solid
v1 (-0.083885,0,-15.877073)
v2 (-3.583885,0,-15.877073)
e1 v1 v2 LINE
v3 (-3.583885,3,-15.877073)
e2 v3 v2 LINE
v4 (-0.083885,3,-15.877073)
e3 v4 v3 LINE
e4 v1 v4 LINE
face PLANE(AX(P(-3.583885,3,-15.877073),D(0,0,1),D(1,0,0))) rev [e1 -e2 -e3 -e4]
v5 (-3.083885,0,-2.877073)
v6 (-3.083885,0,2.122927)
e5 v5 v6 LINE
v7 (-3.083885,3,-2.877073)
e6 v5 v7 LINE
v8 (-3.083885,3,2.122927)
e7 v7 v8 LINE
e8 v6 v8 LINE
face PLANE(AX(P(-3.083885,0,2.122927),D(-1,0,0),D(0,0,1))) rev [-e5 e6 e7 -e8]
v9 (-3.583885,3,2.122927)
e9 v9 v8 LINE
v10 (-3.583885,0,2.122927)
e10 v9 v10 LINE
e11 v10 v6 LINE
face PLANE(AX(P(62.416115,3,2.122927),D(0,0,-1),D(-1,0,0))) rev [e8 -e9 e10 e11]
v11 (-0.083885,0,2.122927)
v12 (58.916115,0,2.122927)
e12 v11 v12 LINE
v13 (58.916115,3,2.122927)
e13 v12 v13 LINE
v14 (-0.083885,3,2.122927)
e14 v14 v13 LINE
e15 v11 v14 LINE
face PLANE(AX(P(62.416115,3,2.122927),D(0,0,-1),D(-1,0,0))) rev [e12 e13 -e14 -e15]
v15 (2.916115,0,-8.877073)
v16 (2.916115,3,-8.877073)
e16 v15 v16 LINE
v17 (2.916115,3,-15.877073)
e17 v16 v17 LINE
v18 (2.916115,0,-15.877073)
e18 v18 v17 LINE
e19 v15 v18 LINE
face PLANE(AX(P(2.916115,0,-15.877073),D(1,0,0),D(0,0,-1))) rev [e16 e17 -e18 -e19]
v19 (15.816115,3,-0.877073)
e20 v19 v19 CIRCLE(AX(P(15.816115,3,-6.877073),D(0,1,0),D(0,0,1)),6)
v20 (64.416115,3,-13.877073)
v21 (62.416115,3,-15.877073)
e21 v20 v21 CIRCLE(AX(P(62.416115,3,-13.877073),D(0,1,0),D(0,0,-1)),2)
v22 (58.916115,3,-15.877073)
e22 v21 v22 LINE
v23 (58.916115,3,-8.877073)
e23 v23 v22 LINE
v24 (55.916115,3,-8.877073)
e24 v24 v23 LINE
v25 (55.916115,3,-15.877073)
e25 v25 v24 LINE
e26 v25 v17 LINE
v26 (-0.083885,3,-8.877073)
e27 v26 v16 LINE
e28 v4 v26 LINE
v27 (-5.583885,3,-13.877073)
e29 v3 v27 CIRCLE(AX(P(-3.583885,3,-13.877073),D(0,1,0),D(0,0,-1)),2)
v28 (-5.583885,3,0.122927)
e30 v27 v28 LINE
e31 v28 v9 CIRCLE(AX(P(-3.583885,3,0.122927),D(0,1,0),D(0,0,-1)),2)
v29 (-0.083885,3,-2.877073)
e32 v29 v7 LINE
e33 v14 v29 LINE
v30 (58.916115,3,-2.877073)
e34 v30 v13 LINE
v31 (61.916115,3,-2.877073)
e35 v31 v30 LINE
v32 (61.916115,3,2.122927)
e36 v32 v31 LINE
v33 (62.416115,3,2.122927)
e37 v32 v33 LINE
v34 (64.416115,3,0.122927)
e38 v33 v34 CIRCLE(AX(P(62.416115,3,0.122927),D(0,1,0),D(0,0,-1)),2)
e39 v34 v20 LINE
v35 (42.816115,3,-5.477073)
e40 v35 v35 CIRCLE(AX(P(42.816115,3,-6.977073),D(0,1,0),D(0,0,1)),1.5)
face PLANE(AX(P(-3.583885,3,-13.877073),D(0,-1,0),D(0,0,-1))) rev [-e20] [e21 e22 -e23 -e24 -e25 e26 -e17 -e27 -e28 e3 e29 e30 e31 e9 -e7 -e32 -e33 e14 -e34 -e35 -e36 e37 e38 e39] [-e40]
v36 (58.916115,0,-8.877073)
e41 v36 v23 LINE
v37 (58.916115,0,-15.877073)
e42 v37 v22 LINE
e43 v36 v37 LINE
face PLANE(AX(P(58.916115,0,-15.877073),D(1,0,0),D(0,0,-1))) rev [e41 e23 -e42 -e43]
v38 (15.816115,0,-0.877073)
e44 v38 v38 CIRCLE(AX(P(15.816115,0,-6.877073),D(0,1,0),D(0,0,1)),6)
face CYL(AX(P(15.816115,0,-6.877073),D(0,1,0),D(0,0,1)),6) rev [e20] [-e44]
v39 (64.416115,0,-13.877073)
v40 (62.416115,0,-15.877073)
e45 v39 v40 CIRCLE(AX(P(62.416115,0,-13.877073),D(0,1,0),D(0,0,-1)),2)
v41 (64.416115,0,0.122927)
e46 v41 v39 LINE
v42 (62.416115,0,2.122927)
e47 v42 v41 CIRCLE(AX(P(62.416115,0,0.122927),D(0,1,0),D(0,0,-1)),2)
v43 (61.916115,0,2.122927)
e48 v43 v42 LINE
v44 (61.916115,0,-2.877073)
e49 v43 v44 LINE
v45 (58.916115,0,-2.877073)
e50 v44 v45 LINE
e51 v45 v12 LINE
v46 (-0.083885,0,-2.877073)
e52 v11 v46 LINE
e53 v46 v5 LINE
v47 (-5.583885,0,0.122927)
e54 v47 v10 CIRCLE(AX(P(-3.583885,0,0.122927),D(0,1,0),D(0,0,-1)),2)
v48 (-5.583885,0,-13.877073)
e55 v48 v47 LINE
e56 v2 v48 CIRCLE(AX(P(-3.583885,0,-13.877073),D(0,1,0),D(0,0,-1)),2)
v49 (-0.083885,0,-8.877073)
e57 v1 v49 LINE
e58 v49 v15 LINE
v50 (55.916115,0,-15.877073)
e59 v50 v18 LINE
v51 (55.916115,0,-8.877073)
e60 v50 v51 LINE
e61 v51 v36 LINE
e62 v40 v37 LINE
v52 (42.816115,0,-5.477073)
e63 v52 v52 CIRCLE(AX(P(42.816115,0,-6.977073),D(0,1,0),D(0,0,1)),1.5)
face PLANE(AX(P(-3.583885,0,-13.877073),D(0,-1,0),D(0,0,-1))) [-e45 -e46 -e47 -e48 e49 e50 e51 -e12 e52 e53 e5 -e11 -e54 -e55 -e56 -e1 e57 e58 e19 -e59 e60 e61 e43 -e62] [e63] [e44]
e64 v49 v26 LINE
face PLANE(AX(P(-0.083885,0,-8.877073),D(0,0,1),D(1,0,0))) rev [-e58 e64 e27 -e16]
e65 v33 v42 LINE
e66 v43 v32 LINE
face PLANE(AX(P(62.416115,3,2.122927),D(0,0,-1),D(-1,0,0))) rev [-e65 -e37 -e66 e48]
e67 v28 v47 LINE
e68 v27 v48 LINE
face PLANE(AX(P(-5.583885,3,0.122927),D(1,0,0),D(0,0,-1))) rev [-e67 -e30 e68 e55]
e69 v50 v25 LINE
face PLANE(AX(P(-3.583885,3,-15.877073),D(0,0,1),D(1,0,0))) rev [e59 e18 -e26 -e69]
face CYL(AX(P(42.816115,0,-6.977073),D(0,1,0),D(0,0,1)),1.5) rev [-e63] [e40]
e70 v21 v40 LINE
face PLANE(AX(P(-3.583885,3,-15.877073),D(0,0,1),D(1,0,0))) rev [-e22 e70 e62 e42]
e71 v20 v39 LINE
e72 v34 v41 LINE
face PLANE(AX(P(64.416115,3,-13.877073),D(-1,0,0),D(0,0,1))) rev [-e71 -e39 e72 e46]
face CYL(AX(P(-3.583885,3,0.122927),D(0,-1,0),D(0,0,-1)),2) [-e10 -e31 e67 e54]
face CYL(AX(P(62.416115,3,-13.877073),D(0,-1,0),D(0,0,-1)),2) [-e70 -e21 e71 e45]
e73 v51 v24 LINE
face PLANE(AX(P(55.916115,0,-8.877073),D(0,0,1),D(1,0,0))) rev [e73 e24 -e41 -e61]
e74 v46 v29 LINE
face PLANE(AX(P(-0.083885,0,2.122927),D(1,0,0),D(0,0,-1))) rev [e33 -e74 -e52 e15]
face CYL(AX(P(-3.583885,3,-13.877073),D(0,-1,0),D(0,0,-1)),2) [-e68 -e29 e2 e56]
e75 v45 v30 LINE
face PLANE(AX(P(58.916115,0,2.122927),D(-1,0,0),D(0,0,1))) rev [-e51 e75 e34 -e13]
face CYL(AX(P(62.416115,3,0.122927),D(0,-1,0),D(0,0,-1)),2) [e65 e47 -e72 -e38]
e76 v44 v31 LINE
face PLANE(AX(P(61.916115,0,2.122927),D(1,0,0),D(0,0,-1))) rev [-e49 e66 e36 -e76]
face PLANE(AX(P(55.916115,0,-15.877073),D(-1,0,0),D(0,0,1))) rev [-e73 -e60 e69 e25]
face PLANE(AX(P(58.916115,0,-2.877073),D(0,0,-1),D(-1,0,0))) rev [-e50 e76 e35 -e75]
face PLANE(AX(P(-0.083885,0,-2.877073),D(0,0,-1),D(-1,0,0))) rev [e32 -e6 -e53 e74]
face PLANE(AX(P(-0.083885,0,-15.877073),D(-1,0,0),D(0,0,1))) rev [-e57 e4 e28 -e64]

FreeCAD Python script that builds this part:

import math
import FreeCAD as App
import Part
import Sketcher
from FreeCAD import Vector
Q = App.Units.Quantity


def add_polygon(sketch, points):
    """Adds a closed chain of lines whose ends are joined by coincident constraints."""
    first, n = sketch.GeometryCount, len(points)
    for a, b in zip(points, points[1:] + points[:1]):
        sketch.addGeometry(Part.LineSegment(App.Vector(*a, 0), App.Vector(*b, 0)), False)
    for i in range(n):
        sketch.addConstraint(Sketcher.Constraint("Coincident", first + i, 2, first + (i + 1) % n, 1))

doc = App.newDocument("Part")
body = doc.addObject("PartDesign::Body", "Body")

# Sketch on XZ plane
sketch1 = body.newObject("Sketcher::SketchObject", "Sketch")
sketch1.AttachmentSupport = (doc.getObject("XZ_Plane"), [""])
sketch1.MapMode = "FlatFace"
sketch1.addGeometry([
    Part.LineSegment(Vector(62.4, -15.9, 0), Vector(-3.6, -15.9, 0)),  # 0
    Part.ArcOfCircle(Part.Circle(Vector(-3.6, -13.9, 0), Vector(0, 0, 1), 2), math.radians(180), math.radians(270)),  # 1
    Part.LineSegment(Vector(-5.6, -13.9, 0), Vector(-5.6, 0.1, 0)),  # 2
    Part.ArcOfCircle(Part.Circle(Vector(-3.6, 0.1, 0), Vector(0, 0, 1), 2), math.radians(90), math.radians(180)),  # 3
    Part.LineSegment(Vector(-3.6, 2.1, 0), Vector(62.4, 2.1, 0)),  # 4
    Part.ArcOfCircle(Part.Circle(Vector(62.4, 0.1, 0), Vector(0, 0, 1), 2), math.radians(0), math.radians(90)),  # 5
    Part.LineSegment(Vector(64.4, 0.1, 0), Vector(64.4, -13.9, 0)),  # 6
    Part.ArcOfCircle(Part.Circle(Vector(62.4, -13.9, 0), Vector(0, 0, 1), 2), math.radians(-90), math.radians(0)),  # 7
], False)
sketch1.addConstraint([
    Sketcher.Constraint("Tangent", 0, 2, 1, 2),
    Sketcher.Constraint("Tangent", 1, 1, 2, 1),
    Sketcher.Constraint("Tangent", 2, 2, 3, 2),
    Sketcher.Constraint("Tangent", 3, 1, 4, 1),
    Sketcher.Constraint("Tangent", 4, 2, 5, 2),
    Sketcher.Constraint("Tangent", 5, 1, 6, 1),
    Sketcher.Constraint("Tangent", 6, 2, 7, 2),
    Sketcher.Constraint("Tangent", 7, 1, 0, 1),
    Sketcher.Constraint("Horizontal", 0),
    Sketcher.Constraint("Vertical", 2),
    Sketcher.Constraint("Horizontal", 4),
    Sketcher.Constraint("Vertical", 6),
    Sketcher.Constraint("Equal", 1, 3),
    Sketcher.Constraint("Equal", 3, 5),
    Sketcher.Constraint("Equal", 5, 7),
    Sketcher.Constraint("Radius", 1, Q("2 mm")),
    Sketcher.Constraint("DistanceX", 0, 2, 0, 1, Q("66 mm")),
    Sketcher.Constraint("DistanceY", 2, 1, 2, 2, Q("14 mm")),
    Sketcher.Constraint("DistanceX", 1, 3, -1, 1, Q("3.583885 mm")),
    Sketcher.Constraint("DistanceY", 1, 3, -1, 1, Q("13.877073 mm")),
])
pad1 = body.newObject("PartDesign::Pad", "Pad")
pad1.Profile = sketch1
pad1.Length = 3
pad1.Reversed = True

# Sketch on XZ plane
sketch2 = body.newObject("Sketcher::SketchObject", "Sketch001")
sketch2.AttachmentSupport = (doc.getObject("XZ_Plane"), [""])
sketch2.MapMode = "FlatFace"
sketch2.AttachmentOffset = App.Placement(Vector(0, 0, -3), App.Rotation())
add_polygon(sketch2, [(-0.1, -15.9), (-0.1, -8.9), (2.9, -8.9), (2.9, -15.9)])  # lines 0-3
add_polygon(sketch2, [(55.9, -15.9), (55.9, -8.9), (58.9, -8.9), (58.9, -15.9)])  # lines 4-7
sketch2.addConstraint([
    Sketcher.Constraint("Vertical", 0),
    Sketcher.Constraint("Horizontal", 1),
    Sketcher.Constraint("Vertical", 2),
    Sketcher.Constraint("Horizontal", 3),
    Sketcher.Constraint("Vertical", 4),
    Sketcher.Constraint("Horizontal", 5),
    Sketcher.Constraint("Vertical", 6),
    Sketcher.Constraint("Horizontal", 7),
    Sketcher.Constraint("Horizontal", 1, 2, 4, 2),
    Sketcher.Constraint("Horizontal", 3, 2, 6, 2),
    Sketcher.Constraint("Equal", 3, 5),
    Sketcher.Constraint("DistanceX", 1, 1, 1, 2, Q("3 mm")),
    Sketcher.Constraint("DistanceY", 0, 1, 0, 2, Q("7 mm")),
    Sketcher.Constraint("DistanceX", 1, 2, 4, 2, Q("53 mm")),
    Sketcher.Constraint("DistanceX", 0, 2, -1, 1, Q("0.083885 mm")),
    Sketcher.Constraint("DistanceY", 0, 2, -1, 1, Q("8.877073 mm")),
])
pocket1 = body.newObject("PartDesign::Pocket", "Pocket")
pocket1.Profile = sketch2
pocket1.Length = 3
pocket1.Reversed = True

# Sketch on XZ plane
sketch3 = body.newObject("Sketcher::SketchObject", "Sketch002")
sketch3.AttachmentSupport = (doc.getObject("XZ_Plane"), [""])
sketch3.MapMode = "FlatFace"
sketch3.AttachmentOffset = App.Placement(Vector(0, 0, -3), App.Rotation())
sketch3.addGeometry(Part.Circle(Vector(42.8, -7, 0), Vector(0, 0, 1), 1.5), False)
sketch3.addConstraint([
    Sketcher.Constraint("Diameter", 0, Q("3 mm")),
    Sketcher.Constraint("DistanceX", -1, 1, 0, 3, Q("42.816115 mm")),
    Sketcher.Constraint("DistanceY", 0, 3, -1, 1, Q("6.977073 mm")),
])
pocket2 = body.newObject("PartDesign::Pocket", "Pocket001")
pocket2.Profile = sketch3
pocket2.Length = 3
pocket2.Reversed = True

# Sketch on XZ plane
sketch4 = body.newObject("Sketcher::SketchObject", "Sketch003")
sketch4.AttachmentSupport = (doc.getObject("XZ_Plane"), [""])
sketch4.MapMode = "FlatFace"
sketch4.AttachmentOffset = App.Placement(Vector(0, 0, -3), App.Rotation())
add_polygon(sketch4, [(58.9, -2.9), (58.9, 2.1), (61.9, 2.1), (61.9, -2.9)])  # lines 0-3
add_polygon(sketch4, [(-3.1, -2.9), (-3.1, 2.1), (-0.1, 2.1), (-0.1, -2.9)])  # lines 4-7
sketch4.addConstraint([
    Sketcher.Constraint("Vertical", 0),
    Sketcher.Constraint("Horizontal", 1),
    Sketcher.Constraint("Vertical", 2),
    Sketcher.Constraint("Horizontal", 3),
    Sketcher.Constraint("Vertical", 4),
    Sketcher.Constraint("Horizontal", 5),
    Sketcher.Constraint("Vertical", 6),
    Sketcher.Constraint("Horizontal", 7),
    Sketcher.Constraint("Horizontal", 1, 2, 4, 2),
    Sketcher.Constraint("Horizontal", 3, 2, 6, 2),
    Sketcher.Constraint("Equal", 3, 5),
    Sketcher.Constraint("DistanceX", 1, 1, 1, 2, Q("3 mm")),
    Sketcher.Constraint("DistanceY", 0, 1, 0, 2, Q("5 mm")),
    Sketcher.Constraint("DistanceX", 4, 2, 0, 2, Q("62 mm")),
    Sketcher.Constraint("DistanceX", -1, 1, 0, 2, Q("58.916115 mm")),
    Sketcher.Constraint("DistanceY", -1, 1, 0, 2, Q("2.122927 mm")),
])
pocket3 = body.newObject("PartDesign::Pocket", "Pocket002")
pocket3.Profile = sketch4
pocket3.Length = 3
pocket3.Reversed = True

# Sketch on XZ plane
sketch5 = body.newObject("Sketcher::SketchObject", "Sketch004")
sketch5.AttachmentSupport = (doc.getObject("XZ_Plane"), [""])
sketch5.MapMode = "FlatFace"
sketch5.AttachmentOffset = App.Placement(Vector(0, 0, -3), App.Rotation())
sketch5.addGeometry(Part.Circle(Vector(16, -7, 0), Vector(0, 0, 1), 6), False)
sketch5.addConstraint([
    Sketcher.Constraint("Diameter", 0, Q("12 mm")),
    Sketcher.Constraint("DistanceX", -1, 1, 0, 3, Q("15.816115 mm")),
    Sketcher.Constraint("DistanceY", 0, 3, -1, 1, Q("6.877073 mm")),
])
pocket4 = body.newObject("PartDesign::Pocket", "Pocket003")
pocket4.Profile = sketch5
pocket4.Length = 3
pocket4.Reversed = True

doc.recompute()
